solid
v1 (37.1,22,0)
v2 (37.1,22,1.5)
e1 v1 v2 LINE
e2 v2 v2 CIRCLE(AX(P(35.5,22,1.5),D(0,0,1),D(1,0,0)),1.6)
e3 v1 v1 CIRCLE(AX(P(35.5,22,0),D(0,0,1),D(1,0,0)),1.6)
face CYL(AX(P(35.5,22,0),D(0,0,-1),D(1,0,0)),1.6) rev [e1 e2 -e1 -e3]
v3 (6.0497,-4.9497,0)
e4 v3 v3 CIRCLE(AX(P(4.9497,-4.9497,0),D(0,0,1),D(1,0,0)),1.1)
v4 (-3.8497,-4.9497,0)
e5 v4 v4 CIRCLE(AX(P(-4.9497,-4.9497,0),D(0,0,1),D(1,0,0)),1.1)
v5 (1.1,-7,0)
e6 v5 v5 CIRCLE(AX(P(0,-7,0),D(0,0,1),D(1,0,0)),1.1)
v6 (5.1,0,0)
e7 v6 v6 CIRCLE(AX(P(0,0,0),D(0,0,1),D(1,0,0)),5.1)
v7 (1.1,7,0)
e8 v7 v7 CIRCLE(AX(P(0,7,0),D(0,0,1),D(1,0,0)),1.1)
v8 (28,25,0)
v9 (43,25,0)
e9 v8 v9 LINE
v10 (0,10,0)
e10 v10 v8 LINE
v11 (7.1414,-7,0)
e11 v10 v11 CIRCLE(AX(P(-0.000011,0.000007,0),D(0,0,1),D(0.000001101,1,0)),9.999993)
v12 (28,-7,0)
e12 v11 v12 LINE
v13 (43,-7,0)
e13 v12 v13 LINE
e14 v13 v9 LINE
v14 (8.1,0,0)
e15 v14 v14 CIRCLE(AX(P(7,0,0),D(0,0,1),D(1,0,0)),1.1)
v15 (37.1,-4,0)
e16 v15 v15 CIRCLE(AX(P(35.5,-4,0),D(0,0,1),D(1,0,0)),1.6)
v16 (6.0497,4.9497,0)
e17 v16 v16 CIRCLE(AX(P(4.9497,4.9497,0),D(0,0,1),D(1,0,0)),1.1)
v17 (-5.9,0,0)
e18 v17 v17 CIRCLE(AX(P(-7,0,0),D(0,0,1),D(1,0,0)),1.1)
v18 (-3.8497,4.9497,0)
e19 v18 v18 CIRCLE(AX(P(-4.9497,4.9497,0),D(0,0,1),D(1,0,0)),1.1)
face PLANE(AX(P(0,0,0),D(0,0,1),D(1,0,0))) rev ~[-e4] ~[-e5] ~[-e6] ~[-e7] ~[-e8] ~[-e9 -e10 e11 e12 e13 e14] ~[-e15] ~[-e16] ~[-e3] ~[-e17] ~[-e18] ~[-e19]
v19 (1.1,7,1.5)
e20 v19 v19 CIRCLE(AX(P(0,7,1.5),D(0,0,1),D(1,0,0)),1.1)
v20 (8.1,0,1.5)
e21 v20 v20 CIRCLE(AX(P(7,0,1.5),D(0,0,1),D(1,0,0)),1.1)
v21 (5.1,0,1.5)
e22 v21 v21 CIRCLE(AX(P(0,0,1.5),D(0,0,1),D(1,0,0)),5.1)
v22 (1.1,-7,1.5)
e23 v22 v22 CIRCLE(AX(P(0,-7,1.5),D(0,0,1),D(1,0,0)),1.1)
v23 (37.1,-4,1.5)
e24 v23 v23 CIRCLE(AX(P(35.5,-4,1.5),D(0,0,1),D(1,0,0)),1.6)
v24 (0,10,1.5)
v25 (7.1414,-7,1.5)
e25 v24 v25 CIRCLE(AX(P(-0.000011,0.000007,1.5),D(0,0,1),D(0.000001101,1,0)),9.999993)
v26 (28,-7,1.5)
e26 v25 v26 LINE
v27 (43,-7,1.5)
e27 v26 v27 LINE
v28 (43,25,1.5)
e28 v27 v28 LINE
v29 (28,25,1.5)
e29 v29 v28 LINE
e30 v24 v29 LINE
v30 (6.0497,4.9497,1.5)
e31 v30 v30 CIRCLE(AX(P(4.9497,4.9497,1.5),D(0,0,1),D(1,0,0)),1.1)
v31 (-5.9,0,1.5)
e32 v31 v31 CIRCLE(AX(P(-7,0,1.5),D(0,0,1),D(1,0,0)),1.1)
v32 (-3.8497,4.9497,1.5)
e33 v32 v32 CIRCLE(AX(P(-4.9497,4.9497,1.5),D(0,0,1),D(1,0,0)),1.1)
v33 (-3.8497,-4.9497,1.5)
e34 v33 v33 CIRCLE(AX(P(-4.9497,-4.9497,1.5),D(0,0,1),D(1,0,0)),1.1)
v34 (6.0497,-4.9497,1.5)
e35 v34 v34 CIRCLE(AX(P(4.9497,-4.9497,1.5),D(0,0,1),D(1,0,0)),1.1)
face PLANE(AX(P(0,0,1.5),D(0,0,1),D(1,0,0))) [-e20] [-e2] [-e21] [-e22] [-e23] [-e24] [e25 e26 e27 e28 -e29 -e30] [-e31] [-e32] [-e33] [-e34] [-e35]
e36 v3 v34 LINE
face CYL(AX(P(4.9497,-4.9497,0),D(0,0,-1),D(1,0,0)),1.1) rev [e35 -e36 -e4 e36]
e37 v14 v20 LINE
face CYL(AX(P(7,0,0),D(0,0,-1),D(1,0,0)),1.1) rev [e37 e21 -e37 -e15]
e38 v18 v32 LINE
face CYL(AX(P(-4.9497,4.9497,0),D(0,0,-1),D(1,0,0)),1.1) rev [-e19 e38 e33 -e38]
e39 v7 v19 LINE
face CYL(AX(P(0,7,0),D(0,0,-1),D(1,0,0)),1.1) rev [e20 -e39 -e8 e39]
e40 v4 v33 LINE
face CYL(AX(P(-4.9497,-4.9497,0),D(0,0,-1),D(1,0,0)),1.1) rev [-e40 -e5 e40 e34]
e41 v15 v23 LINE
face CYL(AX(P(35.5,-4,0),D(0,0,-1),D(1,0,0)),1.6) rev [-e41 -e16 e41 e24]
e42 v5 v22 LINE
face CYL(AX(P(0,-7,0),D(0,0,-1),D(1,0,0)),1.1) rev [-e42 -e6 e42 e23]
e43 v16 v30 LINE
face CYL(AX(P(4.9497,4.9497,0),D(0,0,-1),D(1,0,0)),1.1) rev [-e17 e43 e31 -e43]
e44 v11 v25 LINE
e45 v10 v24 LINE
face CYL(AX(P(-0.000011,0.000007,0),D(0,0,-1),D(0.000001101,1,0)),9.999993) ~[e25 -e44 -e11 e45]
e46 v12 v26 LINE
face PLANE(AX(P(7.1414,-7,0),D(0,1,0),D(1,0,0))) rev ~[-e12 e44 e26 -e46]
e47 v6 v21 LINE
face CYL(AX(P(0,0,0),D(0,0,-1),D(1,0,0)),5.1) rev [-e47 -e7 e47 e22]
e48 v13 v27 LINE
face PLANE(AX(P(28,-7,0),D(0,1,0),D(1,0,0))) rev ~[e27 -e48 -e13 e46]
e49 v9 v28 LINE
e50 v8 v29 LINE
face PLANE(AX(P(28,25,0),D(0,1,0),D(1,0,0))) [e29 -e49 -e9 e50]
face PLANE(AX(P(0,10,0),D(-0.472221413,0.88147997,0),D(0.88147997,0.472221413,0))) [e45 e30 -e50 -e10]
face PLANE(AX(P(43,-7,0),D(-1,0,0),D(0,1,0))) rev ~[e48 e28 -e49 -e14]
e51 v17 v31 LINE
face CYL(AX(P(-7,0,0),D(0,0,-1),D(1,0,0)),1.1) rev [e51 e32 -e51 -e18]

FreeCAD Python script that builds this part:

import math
import FreeCAD as App
import Part
import Sketcher

V = App.Vector
Q = App.Units.Quantity

doc = App.newDocument("Part")
body = doc.addObject("PartDesign::Body", "Body")

sketch1 = doc.addObject("Sketcher::SketchObject", "Sketch")
body.addObject(sketch1)
sketch1.AttachmentSupport = (doc.XY_Plane, [""])
sketch1.MapMode = "FlatFace"
sketch1.addGeometry(Part.LineSegment(V(28, 25, 0), V(0, 10, 0)), False)
sketch1.addGeometry(Part.ArcOfCircle(Part.Circle(V(0, 0, 0), V(0, 0, 1), 10), math.radians(90), math.radians(316)), False)
sketch1.addGeometry(Part.LineSegment(V(7.1, -7, 0), V(43, -7, 0)), False)
sketch1.addGeometry(Part.LineSegment(V(43, -7, 0), V(43, 25, 0)), False)
sketch1.addGeometry(Part.LineSegment(V(43, 25, 0), V(28, 25, 0)), False)
sketch1.addGeometry(Part.Circle(V(0, -7, 0), V(0, 0, 1), 1.1), False)
sketch1.addGeometry(Part.Circle(V(-4.9, -4.9, 0), V(0, 0, 1), 1.1), False)
sketch1.addGeometry(Part.Circle(V(4.9, -4.9, 0), V(0, 0, 1), 1.1), False)
sketch1.addGeometry(Part.Circle(V(-7, 0, 0), V(0, 0, 1), 1.1), False)
sketch1.addGeometry(Part.Circle(V(0, 0, 0), V(0, 0, 1), 5.1), False)
sketch1.addGeometry(Part.Circle(V(-4.9, 4.9, 0), V(0, 0, 1), 1.1), False)
sketch1.addGeometry(Part.Circle(V(0, 7, 0), V(0, 0, 1), 1.1), False)
sketch1.addGeometry(Part.Circle(V(7, 0, 0), V(0, 0, 1), 1.1), False)
sketch1.addGeometry(Part.Circle(V(4.9, 4.9, 0), V(0, 0, 1), 1.1), False)
sketch1.addGeometry(Part.Circle(V(35.5, -4, 0), V(0, 0, 1), 1.6), False)
sketch1.addGeometry(Part.Circle(V(35.5, 22, 0), V(0, 0, 1), 1.6), False)
sketch1.addConstraint(Sketcher.Constraint("Coincident", 0, 2, 1, 1))
sketch1.addConstraint(Sketcher.Constraint("Coincident", 1, 2, 2, 1))
sketch1.addConstraint(Sketcher.Constraint("Coincident", 2, 2, 3, 1))
sketch1.addConstraint(Sketcher.Constraint("Coincident", 3, 2, 4, 1))
sketch1.addConstraint(Sketcher.Constraint("Coincident", 4, 2, 0, 1))
sketch1.addConstraint(Sketcher.Constraint("Horizontal", 2))
sketch1.addConstraint(Sketcher.Constraint("Vertical", 3))
sketch1.addConstraint(Sketcher.Constraint("Horizontal", 4))
sketch1.addConstraint(Sketcher.Constraint("Coincident", 1, 3, -1, 1))
sketch1.addConstraint(Sketcher.Constraint("Coincident", 9, 3, -1, 1))
sketch1.addConstraint(Sketcher.Constraint("Equal", 5, 6))
sketch1.addConstraint(Sketcher.Constraint("Equal", 6, 7))
sketch1.addConstraint(Sketcher.Constraint("Equal", 7, 8))
sketch1.addConstraint(Sketcher.Constraint("Equal", 8, 10))
sketch1.addConstraint(Sketcher.Constraint("Equal", 10, 11))
sketch1.addConstraint(Sketcher.Constraint("Equal", 11, 12))
sketch1.addConstraint(Sketcher.Constraint("Equal", 12, 13))
sketch1.addConstraint(Sketcher.Constraint("Equal", 14, 15))
sketch1.addConstraint(Sketcher.Constraint("Symmetric", 7, 3, 10, 3, -1, 1))
sketch1.addConstraint(Sketcher.Constraint("Symmetric", 5, 3, 11, 3, -1, 1))
sketch1.addConstraint(Sketcher.Constraint("Symmetric", 8, 3, 12, 3, -1, 1))
sketch1.addConstraint(Sketcher.Constraint("Symmetric", 6, 3, 13, 3, -1, 1))
sketch1.addConstraint(Sketcher.Constraint("Symmetric", 6, 3, 7, 3, -2))
sketch1.addConstraint(Sketcher.Constraint("PointOnObject", 5, 3, -2))
sketch1.addConstraint(Sketcher.Constraint("PointOnObject", 8, 3, -1))
sketch1.addConstraint(Sketcher.Constraint("PointOnObject", 0, 2, -2))
sketch1.addConstraint(Sketcher.Constraint("Horizontal", 5, 3, 1, 2))
sketch1.addConstraint(Sketcher.Constraint("Vertical", 14, 3, 15, 3))
sketch1.addConstraint(Sketcher.Constraint("Radius", 1, Q("10 mm")))
sketch1.addConstraint(Sketcher.Constraint("Diameter", 5, Q("2.2 mm")))
sketch1.addConstraint(Sketcher.Constraint("Diameter", 9, Q("10.2 mm")))
sketch1.addConstraint(Sketcher.Constraint("Diameter", 14, Q("3.2 mm")))
sketch1.addConstraint(Sketcher.Constraint("DistanceX", 4, 2, 4, 1, Q("15 mm")))
sketch1.addConstraint(Sketcher.Constraint("DistanceY", 3, 1, 3, 2, Q("32 mm")))
sketch1.addConstraint(Sketcher.Constraint("DistanceY", 5, 3, -1, 1, Q("7 mm")))
sketch1.addConstraint(Sketcher.Constraint("DistanceX", 8, 3, -1, 1, Q("7 mm")))
sketch1.addConstraint(Sketcher.Constraint("DistanceY", 11, 3, 15, 3, Q("15 mm")))
sketch1.addConstraint(Sketcher.Constraint("DistanceX", 2, 1, 2, 2, Q("35.8586 mm")))
sketch1.addConstraint(Sketcher.Constraint("DistanceY", 14, 3, -1, 1, Q("4 mm")))
sketch1.addConstraint(Sketcher.Constraint("DistanceX", -1, 1, 14, 3, Q("35.5 mm")))
sketch1.addConstraint(Sketcher.Constraint("DistanceX", 6, 3, -1, 1, Q("4.9497 mm")))
sketch1.addConstraint(Sketcher.Constraint("DistanceY", 6, 3, -1, 1, Q("4.9497 mm")))
pad1 = doc.addObject("PartDesign::Pad", "Pad")
body.addObject(pad1)
pad1.Profile = sketch1
pad1.Length = 1.5

doc.recompute()
